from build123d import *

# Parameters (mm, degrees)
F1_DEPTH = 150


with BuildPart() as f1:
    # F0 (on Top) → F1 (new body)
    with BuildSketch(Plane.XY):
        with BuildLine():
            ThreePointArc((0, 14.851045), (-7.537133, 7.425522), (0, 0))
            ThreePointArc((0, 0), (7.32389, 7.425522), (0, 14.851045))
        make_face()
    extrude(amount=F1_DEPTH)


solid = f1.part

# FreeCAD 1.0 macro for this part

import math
import FreeCAD as App
import Part
import Sketcher

V = App.Vector

doc = App.newDocument("Part")
body = doc.addObject("PartDesign::Body", "Body")

sketch1 = body.newObject("Sketcher::SketchObject", "Sketch")
sketch1.AttachmentSupport = (doc.getObject("XY_Plane"), [""])
sketch1.MapMode = "FlatFace"
sketch1.addGeometry([
    Part.ArcOfCircle(Part.Circle(V(-0.110784, 7.425522, 0), V(0, 0, 1), 7.426349), math.radians(89.145246), math.radians(270.854754)),
    Part.ArcOfCircle(Part.Circle(V(-0.102338, 7.425522, 0), V(0, 0, 1), 7.426228), math.radians(-89.210406), math.radians(89.210406)),
], False)
sketch1.addConstraint([
    Sketcher.Constraint("Coincident", 0, 1, 1, 2),
    Sketcher.Constraint("Coincident", 1, 1, 0, 2),
    Sketcher.Constraint("Coincident", 1, 1, -1, 1),
    Sketcher.Constraint("PointOnObject", 0, 1, -2),
    Sketcher.Constraint("Radius", 0, 7.426349),
    Sketcher.Constraint("Radius", 1, 7.426228),
    Sketcher.Constraint("DistanceX", 0, 3, -1, 1, 0.110784),
])
pad1 = body.newObject("PartDesign::Pad", "Pad")
pad1.Profile = sketch1
pad1.Length = 150

doc.recompute()
